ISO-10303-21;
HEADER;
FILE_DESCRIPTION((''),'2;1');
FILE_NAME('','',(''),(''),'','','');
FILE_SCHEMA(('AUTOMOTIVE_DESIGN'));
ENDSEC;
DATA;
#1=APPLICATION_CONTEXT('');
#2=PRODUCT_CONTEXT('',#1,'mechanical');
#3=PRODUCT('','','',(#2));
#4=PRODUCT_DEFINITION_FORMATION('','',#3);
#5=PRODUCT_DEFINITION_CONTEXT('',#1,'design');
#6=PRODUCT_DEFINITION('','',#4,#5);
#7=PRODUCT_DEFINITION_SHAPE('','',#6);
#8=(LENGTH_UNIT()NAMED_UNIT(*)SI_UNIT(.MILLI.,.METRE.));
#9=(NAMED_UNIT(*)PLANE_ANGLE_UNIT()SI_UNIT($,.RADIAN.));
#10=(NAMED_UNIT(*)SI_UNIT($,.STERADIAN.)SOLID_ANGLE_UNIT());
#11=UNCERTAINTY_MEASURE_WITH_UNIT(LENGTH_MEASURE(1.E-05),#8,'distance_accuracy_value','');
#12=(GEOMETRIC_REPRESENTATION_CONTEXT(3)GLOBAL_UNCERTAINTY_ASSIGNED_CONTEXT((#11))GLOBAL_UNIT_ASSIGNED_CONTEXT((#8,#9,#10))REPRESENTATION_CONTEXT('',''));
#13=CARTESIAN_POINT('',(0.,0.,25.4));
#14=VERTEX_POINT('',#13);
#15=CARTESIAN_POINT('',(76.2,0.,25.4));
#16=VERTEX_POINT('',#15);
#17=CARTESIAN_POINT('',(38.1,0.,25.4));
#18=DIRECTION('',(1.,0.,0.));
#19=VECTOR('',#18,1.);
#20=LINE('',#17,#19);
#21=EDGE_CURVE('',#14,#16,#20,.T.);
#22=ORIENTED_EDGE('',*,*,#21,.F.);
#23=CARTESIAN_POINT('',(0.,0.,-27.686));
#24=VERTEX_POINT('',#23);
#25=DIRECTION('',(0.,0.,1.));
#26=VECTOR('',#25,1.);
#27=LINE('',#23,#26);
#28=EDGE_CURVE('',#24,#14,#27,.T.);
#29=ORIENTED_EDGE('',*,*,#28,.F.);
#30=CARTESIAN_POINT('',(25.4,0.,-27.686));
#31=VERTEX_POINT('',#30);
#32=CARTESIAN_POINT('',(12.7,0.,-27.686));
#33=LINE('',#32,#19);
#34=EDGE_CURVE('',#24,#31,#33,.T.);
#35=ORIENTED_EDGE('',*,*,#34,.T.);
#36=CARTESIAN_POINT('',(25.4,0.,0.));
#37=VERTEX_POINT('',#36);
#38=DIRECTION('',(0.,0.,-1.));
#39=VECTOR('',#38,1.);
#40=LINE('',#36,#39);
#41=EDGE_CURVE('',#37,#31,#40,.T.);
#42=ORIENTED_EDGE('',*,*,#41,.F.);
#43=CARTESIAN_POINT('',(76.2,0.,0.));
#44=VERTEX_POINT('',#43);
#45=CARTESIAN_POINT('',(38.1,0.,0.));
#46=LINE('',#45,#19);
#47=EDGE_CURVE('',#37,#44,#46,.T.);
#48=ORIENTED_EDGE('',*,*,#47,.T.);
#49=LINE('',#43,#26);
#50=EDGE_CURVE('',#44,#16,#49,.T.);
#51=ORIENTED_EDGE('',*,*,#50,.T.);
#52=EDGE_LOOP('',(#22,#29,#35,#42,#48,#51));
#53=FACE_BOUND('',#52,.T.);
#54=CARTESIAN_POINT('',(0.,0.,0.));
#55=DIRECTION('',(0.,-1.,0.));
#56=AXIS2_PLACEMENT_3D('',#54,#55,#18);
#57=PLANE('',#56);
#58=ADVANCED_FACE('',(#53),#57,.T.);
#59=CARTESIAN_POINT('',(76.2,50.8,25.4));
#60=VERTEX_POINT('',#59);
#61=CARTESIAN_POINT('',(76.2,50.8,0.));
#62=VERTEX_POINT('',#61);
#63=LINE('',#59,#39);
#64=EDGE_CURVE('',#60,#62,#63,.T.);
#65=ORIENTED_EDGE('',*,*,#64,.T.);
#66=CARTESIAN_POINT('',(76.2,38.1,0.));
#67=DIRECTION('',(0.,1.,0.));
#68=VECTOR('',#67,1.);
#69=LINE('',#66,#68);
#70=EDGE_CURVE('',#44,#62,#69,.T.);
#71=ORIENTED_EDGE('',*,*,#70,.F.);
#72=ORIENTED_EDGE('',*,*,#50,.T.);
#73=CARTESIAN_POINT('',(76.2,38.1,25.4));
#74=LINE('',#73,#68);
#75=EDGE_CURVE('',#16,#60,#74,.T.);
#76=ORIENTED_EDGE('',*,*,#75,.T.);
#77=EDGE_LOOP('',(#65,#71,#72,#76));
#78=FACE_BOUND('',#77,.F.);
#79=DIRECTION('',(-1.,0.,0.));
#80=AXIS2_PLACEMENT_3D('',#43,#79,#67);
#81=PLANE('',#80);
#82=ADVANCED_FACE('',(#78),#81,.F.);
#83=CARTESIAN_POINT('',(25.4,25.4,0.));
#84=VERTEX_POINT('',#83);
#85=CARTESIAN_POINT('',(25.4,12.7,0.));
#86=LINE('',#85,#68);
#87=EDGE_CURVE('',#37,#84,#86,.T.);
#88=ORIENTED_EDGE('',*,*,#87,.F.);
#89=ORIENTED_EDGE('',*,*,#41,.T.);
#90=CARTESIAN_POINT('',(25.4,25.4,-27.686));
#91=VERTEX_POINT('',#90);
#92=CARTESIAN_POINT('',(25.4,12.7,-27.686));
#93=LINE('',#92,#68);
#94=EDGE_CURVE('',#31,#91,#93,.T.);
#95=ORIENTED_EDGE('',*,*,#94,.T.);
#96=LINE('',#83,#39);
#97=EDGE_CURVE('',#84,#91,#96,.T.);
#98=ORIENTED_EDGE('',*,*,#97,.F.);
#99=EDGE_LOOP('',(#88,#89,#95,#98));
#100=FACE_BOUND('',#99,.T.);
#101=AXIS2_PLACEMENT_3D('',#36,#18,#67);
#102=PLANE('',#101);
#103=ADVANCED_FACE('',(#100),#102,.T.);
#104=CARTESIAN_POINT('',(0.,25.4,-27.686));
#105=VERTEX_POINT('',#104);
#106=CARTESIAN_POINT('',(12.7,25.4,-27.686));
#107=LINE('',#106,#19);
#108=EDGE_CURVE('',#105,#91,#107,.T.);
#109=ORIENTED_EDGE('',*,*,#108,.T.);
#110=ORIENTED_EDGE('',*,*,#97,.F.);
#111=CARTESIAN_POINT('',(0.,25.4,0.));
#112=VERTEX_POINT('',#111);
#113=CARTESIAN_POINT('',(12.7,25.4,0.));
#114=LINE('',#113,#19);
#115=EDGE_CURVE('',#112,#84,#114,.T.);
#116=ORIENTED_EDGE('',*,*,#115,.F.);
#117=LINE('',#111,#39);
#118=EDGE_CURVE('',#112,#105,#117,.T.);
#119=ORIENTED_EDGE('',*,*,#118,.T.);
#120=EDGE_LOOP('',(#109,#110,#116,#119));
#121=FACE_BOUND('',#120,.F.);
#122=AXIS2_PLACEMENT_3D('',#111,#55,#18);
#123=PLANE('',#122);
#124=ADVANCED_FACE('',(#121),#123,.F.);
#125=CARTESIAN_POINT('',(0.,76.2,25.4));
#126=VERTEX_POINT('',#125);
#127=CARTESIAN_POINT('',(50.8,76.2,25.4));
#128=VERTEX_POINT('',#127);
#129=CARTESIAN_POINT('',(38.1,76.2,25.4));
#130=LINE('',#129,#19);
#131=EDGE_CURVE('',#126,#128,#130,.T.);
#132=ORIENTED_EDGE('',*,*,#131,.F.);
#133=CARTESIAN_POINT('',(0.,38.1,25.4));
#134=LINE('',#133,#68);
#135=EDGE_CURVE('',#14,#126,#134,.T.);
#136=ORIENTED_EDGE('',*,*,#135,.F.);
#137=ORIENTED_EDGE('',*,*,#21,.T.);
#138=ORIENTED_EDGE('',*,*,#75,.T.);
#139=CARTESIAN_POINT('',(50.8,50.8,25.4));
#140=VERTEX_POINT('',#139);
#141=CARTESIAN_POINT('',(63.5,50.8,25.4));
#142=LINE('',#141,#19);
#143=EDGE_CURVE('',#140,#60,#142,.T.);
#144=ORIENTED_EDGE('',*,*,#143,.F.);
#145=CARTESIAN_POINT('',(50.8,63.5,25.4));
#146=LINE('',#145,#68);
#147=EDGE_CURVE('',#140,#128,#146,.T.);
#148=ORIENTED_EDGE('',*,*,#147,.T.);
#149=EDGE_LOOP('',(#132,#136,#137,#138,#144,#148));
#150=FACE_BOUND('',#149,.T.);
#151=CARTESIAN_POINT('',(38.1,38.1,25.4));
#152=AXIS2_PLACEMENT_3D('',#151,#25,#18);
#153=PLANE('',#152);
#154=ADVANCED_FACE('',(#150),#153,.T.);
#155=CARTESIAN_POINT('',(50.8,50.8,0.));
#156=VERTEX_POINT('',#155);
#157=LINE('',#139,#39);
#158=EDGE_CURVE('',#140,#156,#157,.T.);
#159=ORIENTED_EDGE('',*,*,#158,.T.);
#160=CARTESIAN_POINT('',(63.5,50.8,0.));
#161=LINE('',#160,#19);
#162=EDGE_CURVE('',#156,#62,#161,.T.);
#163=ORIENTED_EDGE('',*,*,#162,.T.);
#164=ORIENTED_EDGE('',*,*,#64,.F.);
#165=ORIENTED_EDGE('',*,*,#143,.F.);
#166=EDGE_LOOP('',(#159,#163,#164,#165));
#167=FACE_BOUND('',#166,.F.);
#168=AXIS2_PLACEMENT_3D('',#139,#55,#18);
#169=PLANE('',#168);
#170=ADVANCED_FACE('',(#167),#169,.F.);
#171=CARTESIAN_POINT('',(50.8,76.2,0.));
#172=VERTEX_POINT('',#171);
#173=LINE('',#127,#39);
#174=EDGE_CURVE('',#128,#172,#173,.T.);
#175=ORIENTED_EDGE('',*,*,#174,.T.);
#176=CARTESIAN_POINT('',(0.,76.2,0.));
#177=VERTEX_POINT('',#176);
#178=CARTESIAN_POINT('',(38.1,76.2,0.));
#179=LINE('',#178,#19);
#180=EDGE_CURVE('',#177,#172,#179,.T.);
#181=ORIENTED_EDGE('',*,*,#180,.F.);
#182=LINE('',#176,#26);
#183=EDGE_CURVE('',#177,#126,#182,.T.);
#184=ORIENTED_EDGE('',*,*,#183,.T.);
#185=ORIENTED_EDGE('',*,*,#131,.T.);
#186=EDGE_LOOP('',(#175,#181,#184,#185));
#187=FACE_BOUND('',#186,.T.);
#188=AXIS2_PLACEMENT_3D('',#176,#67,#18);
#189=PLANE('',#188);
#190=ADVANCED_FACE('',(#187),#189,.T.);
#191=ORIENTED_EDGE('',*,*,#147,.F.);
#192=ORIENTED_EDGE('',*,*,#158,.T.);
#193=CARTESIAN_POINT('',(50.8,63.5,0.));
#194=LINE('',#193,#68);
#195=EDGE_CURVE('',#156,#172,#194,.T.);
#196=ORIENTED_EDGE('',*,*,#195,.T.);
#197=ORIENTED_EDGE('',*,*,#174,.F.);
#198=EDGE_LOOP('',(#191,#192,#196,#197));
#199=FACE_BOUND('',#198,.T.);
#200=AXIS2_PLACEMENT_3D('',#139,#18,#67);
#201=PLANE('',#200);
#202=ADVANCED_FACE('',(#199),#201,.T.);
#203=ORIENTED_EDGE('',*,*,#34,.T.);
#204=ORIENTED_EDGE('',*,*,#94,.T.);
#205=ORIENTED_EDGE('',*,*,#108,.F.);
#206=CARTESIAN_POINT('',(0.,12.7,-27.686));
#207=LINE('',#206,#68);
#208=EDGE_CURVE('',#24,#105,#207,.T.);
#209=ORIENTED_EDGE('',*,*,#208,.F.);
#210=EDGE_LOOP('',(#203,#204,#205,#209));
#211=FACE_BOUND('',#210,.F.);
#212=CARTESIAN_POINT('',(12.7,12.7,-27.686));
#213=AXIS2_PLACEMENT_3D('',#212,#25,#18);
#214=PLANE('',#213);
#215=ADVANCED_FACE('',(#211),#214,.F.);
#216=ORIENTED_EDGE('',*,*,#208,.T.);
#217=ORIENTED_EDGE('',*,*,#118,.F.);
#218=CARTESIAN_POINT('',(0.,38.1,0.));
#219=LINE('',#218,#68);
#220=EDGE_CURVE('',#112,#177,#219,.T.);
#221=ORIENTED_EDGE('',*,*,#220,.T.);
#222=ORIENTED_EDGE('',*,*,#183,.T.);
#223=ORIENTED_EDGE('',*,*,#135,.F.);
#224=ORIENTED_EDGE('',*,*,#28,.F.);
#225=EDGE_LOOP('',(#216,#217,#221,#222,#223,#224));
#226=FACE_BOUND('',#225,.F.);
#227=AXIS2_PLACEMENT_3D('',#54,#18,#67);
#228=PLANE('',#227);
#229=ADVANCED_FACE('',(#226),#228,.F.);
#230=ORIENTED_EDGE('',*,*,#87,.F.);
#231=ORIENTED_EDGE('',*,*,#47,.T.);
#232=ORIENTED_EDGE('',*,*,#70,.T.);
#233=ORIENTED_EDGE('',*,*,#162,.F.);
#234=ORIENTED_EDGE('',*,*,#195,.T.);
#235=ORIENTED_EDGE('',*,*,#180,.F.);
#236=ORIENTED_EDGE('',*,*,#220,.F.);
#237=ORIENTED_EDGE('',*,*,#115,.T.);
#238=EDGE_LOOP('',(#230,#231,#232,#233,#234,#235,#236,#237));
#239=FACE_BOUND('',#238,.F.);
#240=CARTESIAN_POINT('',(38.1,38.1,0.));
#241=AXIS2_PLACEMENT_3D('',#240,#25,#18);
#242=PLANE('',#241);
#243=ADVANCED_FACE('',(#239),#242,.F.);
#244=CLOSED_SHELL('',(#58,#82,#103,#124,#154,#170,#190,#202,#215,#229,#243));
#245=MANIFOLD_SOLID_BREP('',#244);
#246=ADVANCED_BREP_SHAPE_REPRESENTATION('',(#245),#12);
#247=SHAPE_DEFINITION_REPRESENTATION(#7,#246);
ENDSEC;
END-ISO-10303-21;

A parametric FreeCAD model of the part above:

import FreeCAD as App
import Part
import Sketcher
Q = App.Units.Quantity


def add_polygon(sketch, points):
    """Adds a closed chain of lines whose ends are joined by coincident constraints."""
    first, n = sketch.GeometryCount, len(points)
    for a, b in zip(points, points[1:] + points[:1]):
        sketch.addGeometry(Part.LineSegment(App.Vector(*a, 0), App.Vector(*b, 0)), False)
    for i in range(n):
        sketch.addConstraint(Sketcher.Constraint("Coincident", first + i, 2, first + (i + 1) % n, 1))

doc = App.newDocument("Part")
body = doc.addObject("PartDesign::Body", "Body")

sketch1 = doc.addObject("Sketcher::SketchObject", "Sketch")
body.addObject(sketch1)
sketch1.AttachmentSupport = (doc.XY_Plane, [""])
sketch1.MapMode = "FlatFace"
add_polygon(sketch1, [(0, 76.2), (0, 0), (76.2, 0), (76.2, 76.2)])
sketch1.addConstraint([
    Sketcher.Constraint("Vertical", 0),
    Sketcher.Constraint("Horizontal", 1),
    Sketcher.Constraint("Vertical", 2),
    Sketcher.Constraint("Horizontal", 3),
    Sketcher.Constraint("Coincident", 0, 2, -1, 1),
    Sketcher.Constraint("Equal", 3, 0),
    Sketcher.Constraint("DistanceX", 1, 1, 1, 2, Q("3 in")),
])
pad1 = doc.addObject("PartDesign::Pad", "Pad")
body.addObject(pad1)
pad1.Profile = sketch1
pad1.Length = Q("1 in")

sketch2 = doc.addObject("Sketcher::SketchObject", "Sketch001")
body.addObject(sketch2)
sketch2.AttachmentSupport = (doc.XY_Plane, [""])
sketch2.MapMode = "FlatFace"
sketch2.AttachmentOffset = App.Placement(App.Vector(0, 0, 1 * 25.4), App.Rotation())
add_polygon(sketch2, [(50.8, 76.2), (50.8, 50.8), (76.2, 50.8), (76.2, 76.2)])
sketch2.addConstraint([
    Sketcher.Constraint("Vertical", 0),
    Sketcher.Constraint("Horizontal", 1),
    Sketcher.Constraint("Vertical", 2),
    Sketcher.Constraint("Horizontal", 3),
    Sketcher.Constraint("Equal", 3, 0),
    Sketcher.Constraint("DistanceX", 1, 1, 1, 2, Q("1 in")),
    Sketcher.Constraint("DistanceX", -1, 1, 0, 2, Q("2 in")),
    Sketcher.Constraint("DistanceY", -1, 1, 0, 2, Q("2 in")),
])
pocket1 = doc.addObject("PartDesign::Pocket", "Pocket")
body.addObject(pocket1)
pocket1.Profile = sketch2
pocket1.Length = Q("1 in")

sketch3 = doc.addObject("Sketcher::SketchObject", "Sketch002")
body.addObject(sketch3)
sketch3.AttachmentSupport = (doc.XY_Plane, [""])
sketch3.MapMode = "FlatFace"
add_polygon(sketch3, [(0, 25.4), (0, 0), (25.4, 0), (25.4, 25.4)])
sketch3.addConstraint([
    Sketcher.Constraint("Vertical", 0),
    Sketcher.Constraint("Horizontal", 1),
    Sketcher.Constraint("Vertical", 2),
    Sketcher.Constraint("Horizontal", 3),
    Sketcher.Constraint("Coincident", 0, 2, -1, 1),
    Sketcher.Constraint("Equal", 3, 0),
    Sketcher.Constraint("DistanceX", 1, 1, 1, 2, Q("1 in")),
])
pad2 = doc.addObject("PartDesign::Pad", "Pad001")
body.addObject(pad2)
pad2.Profile = sketch3
pad2.Length = Q("1.09 in")
pad2.Reversed = True

doc.recompute()
